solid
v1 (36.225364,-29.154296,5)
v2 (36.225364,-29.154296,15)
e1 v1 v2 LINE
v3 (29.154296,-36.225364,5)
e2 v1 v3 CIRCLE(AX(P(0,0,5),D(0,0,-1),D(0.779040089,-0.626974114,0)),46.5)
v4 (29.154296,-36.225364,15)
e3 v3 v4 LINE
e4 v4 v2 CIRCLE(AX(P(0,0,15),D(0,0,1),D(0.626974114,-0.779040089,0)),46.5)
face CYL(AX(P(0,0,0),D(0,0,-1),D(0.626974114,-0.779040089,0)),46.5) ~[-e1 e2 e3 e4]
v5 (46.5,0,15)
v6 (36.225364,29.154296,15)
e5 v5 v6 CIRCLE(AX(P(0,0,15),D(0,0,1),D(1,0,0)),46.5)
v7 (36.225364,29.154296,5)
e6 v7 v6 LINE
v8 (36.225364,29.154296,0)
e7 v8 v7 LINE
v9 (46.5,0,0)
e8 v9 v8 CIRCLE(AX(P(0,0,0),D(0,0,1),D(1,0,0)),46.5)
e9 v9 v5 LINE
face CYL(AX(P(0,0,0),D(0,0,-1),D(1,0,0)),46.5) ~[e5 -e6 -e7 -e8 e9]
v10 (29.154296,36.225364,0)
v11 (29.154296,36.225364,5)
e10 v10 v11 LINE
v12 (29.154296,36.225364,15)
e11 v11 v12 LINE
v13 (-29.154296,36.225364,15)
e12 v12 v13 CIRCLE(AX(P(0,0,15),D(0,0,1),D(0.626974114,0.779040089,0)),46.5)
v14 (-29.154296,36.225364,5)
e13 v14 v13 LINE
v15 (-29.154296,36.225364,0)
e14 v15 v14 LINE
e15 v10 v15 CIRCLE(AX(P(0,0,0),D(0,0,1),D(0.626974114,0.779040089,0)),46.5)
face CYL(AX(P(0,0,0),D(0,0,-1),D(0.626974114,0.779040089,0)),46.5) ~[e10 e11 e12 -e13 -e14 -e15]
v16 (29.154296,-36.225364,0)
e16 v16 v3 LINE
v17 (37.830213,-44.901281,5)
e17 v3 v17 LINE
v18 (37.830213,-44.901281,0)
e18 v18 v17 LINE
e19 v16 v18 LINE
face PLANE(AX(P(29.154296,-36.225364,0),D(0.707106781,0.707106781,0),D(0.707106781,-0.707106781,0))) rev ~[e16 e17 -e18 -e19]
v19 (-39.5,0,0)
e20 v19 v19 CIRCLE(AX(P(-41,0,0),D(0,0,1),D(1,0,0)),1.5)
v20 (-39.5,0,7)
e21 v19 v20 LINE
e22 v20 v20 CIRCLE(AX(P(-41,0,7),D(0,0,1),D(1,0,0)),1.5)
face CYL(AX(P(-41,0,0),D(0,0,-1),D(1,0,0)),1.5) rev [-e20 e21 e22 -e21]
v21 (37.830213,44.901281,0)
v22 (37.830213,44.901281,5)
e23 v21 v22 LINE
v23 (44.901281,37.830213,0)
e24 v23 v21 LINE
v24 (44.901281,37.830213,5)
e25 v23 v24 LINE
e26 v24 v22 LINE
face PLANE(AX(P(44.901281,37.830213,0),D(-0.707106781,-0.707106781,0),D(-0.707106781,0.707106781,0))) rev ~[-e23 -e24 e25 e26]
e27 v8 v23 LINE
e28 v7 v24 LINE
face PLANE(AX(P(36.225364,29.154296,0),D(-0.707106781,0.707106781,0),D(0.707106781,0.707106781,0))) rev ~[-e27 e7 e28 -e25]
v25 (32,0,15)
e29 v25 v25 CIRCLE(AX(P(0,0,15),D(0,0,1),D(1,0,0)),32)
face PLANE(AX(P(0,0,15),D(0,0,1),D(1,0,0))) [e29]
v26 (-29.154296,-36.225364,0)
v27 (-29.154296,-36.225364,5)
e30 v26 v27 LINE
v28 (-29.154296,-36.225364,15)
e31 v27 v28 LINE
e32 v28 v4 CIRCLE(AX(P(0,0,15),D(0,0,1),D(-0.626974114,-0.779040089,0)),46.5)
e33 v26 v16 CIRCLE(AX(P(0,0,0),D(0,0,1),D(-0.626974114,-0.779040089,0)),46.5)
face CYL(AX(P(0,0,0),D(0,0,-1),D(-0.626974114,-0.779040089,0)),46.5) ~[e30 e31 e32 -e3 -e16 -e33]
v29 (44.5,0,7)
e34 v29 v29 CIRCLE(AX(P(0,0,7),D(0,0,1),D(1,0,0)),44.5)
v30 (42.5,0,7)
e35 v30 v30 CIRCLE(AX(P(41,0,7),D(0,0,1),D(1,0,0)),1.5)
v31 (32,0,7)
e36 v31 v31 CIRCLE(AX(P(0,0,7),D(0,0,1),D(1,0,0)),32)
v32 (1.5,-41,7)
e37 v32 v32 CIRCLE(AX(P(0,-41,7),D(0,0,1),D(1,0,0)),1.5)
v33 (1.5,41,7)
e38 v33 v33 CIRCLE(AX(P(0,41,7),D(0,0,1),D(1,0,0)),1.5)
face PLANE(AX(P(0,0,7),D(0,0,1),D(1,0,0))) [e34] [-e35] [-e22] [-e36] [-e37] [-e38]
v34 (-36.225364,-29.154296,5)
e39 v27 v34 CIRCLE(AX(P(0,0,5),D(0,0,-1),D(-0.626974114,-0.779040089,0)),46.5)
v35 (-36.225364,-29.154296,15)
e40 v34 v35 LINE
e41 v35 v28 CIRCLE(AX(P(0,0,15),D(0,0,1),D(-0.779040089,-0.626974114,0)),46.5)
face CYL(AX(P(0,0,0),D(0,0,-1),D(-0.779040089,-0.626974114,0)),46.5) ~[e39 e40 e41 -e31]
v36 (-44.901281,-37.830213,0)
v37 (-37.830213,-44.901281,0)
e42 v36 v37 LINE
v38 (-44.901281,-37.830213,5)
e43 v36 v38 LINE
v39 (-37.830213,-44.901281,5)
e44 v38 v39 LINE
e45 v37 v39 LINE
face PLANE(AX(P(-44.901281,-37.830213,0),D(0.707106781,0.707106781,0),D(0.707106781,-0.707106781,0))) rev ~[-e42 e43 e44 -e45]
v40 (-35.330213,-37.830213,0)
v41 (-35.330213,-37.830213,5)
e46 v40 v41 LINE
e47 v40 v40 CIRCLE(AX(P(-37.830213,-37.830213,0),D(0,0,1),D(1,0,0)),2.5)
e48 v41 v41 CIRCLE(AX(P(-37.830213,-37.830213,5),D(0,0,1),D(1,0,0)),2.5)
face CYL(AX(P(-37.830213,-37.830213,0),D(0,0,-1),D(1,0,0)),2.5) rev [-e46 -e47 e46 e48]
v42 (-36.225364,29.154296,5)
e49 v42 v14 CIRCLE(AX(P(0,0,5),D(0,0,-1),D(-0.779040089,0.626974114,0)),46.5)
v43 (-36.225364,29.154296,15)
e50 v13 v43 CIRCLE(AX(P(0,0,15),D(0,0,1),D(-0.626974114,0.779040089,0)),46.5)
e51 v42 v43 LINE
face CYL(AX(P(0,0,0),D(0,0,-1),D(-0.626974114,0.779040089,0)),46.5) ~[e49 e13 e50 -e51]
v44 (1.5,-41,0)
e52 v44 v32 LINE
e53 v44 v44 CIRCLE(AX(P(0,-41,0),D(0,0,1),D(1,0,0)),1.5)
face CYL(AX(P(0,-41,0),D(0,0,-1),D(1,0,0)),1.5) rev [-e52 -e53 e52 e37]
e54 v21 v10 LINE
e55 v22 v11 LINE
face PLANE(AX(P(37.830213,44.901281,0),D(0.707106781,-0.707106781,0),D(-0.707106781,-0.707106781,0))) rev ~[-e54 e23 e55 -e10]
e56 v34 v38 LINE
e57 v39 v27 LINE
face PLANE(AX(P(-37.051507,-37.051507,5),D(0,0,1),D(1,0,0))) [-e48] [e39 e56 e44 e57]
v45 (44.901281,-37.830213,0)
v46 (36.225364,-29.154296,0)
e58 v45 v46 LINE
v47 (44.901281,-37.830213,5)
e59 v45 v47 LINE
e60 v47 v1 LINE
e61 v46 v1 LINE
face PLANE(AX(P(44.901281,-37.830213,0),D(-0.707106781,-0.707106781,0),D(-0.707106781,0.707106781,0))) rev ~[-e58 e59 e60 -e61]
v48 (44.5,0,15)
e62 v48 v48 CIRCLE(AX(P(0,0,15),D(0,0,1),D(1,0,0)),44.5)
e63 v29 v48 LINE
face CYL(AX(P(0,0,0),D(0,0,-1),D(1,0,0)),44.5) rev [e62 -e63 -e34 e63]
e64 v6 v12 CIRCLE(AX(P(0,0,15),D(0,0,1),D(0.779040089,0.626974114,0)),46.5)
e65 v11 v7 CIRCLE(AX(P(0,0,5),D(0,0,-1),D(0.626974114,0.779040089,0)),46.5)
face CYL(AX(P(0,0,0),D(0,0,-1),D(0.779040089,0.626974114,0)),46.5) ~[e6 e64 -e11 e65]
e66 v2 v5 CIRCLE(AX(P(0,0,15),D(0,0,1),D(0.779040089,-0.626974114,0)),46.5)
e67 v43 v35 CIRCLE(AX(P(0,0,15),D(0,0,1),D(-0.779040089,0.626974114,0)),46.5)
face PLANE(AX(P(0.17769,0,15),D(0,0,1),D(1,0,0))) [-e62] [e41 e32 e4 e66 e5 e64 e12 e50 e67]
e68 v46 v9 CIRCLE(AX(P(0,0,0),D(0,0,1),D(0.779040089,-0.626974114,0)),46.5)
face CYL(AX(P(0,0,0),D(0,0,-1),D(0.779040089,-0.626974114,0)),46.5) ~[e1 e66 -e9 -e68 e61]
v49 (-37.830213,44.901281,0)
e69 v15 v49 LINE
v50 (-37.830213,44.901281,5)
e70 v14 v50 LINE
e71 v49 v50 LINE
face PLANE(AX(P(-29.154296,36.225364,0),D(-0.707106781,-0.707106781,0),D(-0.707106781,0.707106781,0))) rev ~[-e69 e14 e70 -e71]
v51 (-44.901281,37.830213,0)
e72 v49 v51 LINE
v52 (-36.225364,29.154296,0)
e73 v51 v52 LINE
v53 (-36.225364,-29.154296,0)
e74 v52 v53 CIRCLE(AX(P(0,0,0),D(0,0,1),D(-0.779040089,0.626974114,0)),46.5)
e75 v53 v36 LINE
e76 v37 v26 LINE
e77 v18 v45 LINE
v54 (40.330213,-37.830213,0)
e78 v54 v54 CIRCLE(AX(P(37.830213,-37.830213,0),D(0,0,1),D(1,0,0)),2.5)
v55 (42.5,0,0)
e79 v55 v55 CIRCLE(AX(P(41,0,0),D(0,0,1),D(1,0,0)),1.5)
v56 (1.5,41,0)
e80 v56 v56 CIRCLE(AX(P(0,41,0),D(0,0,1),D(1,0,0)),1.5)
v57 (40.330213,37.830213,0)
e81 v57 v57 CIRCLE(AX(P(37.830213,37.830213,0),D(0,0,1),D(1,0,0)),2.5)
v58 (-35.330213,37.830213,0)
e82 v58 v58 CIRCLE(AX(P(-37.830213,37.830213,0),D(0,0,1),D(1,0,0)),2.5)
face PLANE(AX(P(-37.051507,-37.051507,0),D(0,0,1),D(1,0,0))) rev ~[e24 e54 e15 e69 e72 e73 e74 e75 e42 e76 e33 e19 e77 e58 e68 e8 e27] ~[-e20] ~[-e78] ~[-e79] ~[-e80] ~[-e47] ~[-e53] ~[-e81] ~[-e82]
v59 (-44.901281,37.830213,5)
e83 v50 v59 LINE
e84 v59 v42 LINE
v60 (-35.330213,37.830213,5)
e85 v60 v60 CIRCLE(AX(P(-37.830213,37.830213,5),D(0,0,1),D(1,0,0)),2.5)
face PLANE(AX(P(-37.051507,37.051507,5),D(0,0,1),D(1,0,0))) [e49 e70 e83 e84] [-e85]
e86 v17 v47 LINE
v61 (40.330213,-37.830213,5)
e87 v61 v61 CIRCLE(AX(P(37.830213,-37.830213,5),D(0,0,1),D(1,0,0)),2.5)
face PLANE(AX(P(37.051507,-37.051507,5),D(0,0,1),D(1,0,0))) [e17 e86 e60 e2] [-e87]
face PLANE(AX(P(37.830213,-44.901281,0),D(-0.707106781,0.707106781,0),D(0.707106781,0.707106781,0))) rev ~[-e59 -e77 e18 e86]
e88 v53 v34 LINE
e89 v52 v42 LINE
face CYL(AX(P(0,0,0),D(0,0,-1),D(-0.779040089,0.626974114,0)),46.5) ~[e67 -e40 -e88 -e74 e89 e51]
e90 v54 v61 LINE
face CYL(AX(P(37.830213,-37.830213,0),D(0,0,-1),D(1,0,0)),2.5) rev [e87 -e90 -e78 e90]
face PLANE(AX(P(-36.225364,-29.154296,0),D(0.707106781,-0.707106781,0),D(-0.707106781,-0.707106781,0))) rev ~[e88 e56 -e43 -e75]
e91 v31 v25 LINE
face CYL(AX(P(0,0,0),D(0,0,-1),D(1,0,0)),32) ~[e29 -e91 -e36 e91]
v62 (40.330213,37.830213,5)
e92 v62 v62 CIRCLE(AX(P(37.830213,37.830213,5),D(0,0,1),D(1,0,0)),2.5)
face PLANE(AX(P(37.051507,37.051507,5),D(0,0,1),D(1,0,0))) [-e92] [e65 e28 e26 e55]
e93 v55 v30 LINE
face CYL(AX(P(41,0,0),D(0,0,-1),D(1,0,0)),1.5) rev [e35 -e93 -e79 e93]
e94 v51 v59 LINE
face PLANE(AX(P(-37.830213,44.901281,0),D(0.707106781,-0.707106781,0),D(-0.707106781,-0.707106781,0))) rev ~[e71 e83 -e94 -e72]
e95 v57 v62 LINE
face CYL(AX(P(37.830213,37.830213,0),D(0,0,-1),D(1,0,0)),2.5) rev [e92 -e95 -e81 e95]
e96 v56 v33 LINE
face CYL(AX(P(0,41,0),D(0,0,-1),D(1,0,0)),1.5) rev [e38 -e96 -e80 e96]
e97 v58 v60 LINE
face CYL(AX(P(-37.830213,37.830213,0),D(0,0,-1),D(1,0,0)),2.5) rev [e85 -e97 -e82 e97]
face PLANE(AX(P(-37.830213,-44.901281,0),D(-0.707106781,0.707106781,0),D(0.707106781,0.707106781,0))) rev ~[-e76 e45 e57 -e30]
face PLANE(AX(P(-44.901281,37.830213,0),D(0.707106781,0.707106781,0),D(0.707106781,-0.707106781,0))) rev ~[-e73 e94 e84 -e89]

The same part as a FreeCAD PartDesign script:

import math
import FreeCAD as App
import Part
import Sketcher
from FreeCAD import Vector

doc = App.newDocument("Part")
body = doc.addObject("PartDesign::Body", "Body")

sketch1 = doc.addObject("Sketcher::SketchObject", "Sketch")
body.addObject(sketch1)
sketch1.AttachmentSupport = (doc.XY_Plane, [""])
sketch1.MapMode = "FlatFace"
sketch1.addGeometry(Part.Circle(Vector(0, 0, 0), Vector(0, 0, 1), 44.5), False)
sketch1.addGeometry(Part.Circle(Vector(0, -41, 0), Vector(0, 0, 1), 1.5), False)
sketch1.addGeometry(Part.Circle(Vector(-41, 0, 0), Vector(0, 0, 1), 1.5), False)
sketch1.addGeometry(Part.Circle(Vector(0, 0, 0), Vector(0, 0, 1), 32), False)
sketch1.addGeometry(Part.Circle(Vector(41, 0, 0), Vector(0, 0, 1), 1.5), False)
sketch1.addGeometry(Part.Circle(Vector(0, 41, 0), Vector(0, 0, 1), 1.5), False)
sketch1.addConstraint(Sketcher.Constraint("Coincident", 0, 3, -1, 1))
sketch1.addConstraint(Sketcher.Constraint("Coincident", 3, 3, -1, 1))
sketch1.addConstraint(Sketcher.Constraint("Equal", 1, 2))
sketch1.addConstraint(Sketcher.Constraint("Equal", 2, 4))
sketch1.addConstraint(Sketcher.Constraint("Equal", 4, 5))
sketch1.addConstraint(Sketcher.Constraint("Symmetric", 2, 3, 4, 3, -1, 1))
sketch1.addConstraint(Sketcher.Constraint("Symmetric", 1, 3, 5, 3, -1, 1))
sketch1.addConstraint(Sketcher.Constraint("PointOnObject", 1, 3, -2))
sketch1.addConstraint(Sketcher.Constraint("PointOnObject", 2, 3, -1))
sketch1.addConstraint(Sketcher.Constraint("Diameter", 0, 89.0))
sketch1.addConstraint(Sketcher.Constraint("Diameter", 1, 3.0))
sketch1.addConstraint(Sketcher.Constraint("Diameter", 3, 64.0))
sketch1.addConstraint(Sketcher.Constraint("DistanceY", 1, 3, -1, 1, 41.0))
sketch1.addConstraint(Sketcher.Constraint("DistanceX", 2, 3, -1, 1, 41.0))
pad1 = doc.addObject("PartDesign::Pad", "Pad")
body.addObject(pad1)
pad1.Profile = sketch1
pad1.Length = 7

sketch2 = doc.addObject("Sketcher::SketchObject", "Sketch001")
body.addObject(sketch2)
sketch2.AttachmentSupport = (doc.XY_Plane, [""])
sketch2.MapMode = "FlatFace"
sketch2.addGeometry(Part.ArcOfCircle(Part.Circle(Vector(0, 0, 0), Vector(0, 0, 1), 46), math.radians(-39), math.radians(0)), False)
sketch2.addGeometry(Part.ArcOfCircle(Part.Circle(Vector(0, 0, 0), Vector(0, 0, 1), 46), math.radians(0), math.radians(39)), False)
sketch2.addGeometry(Part.ArcOfCircle(Part.Circle(Vector(0, 0, 0), Vector(0, 0, 1), 46), math.radians(38.83), math.radians(51.17)), False)
sketch2.addGeometry(Part.ArcOfCircle(Part.Circle(Vector(0, 0, 0), Vector(0, 0, 1), 46), math.radians(51), math.radians(129)), False)
sketch2.addGeometry(Part.ArcOfCircle(Part.Circle(Vector(0, 0, 0), Vector(0, 0, 1), 46), math.radians(128.83), math.radians(141.17)), False)
sketch2.addGeometry(Part.ArcOfCircle(Part.Circle(Vector(0, 0, 0), Vector(0, 0, 1), 46), math.radians(141), math.radians(219)), False)
sketch2.addGeometry(Part.ArcOfCircle(Part.Circle(Vector(0, 0, 0), Vector(0, 0, 1), 46), math.radians(-141.17), math.radians(-128.83)), False)
sketch2.addGeometry(Part.ArcOfCircle(Part.Circle(Vector(0, 0, 0), Vector(0, 0, 1), 46), math.radians(-129), math.radians(-51)), False)
sketch2.addGeometry(Part.ArcOfCircle(Part.Circle(Vector(0, 0, 0), Vector(0, 0, 1), 46), math.radians(-51.17), math.radians(-38.83)), False)
sketch2.addGeometry(Part.Circle(Vector(0, 0, 0), Vector(0, 0, 1), 44), False)
sketch2.addGeometry(Part.Circle(Vector(0, 0, 0), Vector(0, 0, 1), 32), False)
sketch2.addConstraint(Sketcher.Constraint("Tangent", 0, 2, 1, 1))
sketch2.addConstraint(Sketcher.Constraint("Tangent", 1, 2, 2, 1))
sketch2.addConstraint(Sketcher.Constraint("Tangent", 2, 2, 3, 1))
sketch2.addConstraint(Sketcher.Constraint("Tangent", 3, 2, 4, 1))
sketch2.addConstraint(Sketcher.Constraint("Tangent", 4, 2, 5, 1))
sketch2.addConstraint(Sketcher.Constraint("Tangent", 5, 2, 6, 1))
sketch2.addConstraint(Sketcher.Constraint("Tangent", 6, 2, 7, 1))
sketch2.addConstraint(Sketcher.Constraint("Tangent", 7, 2, 8, 1))
sketch2.addConstraint(Sketcher.Constraint("Tangent", 8, 2, 0, 1))
sketch2.addConstraint(Sketcher.Constraint("Coincident", 0, 3, -1, 1))
sketch2.addConstraint(Sketcher.Constraint("Coincident", 2, 3, -1, 1))
sketch2.addConstraint(Sketcher.Constraint("Coincident", 4, 3, -1, 1))
sketch2.addConstraint(Sketcher.Constraint("Coincident", 6, 3, -1, 1))
sketch2.addConstraint(Sketcher.Constraint("Coincident", 9, 3, -1, 1))
sketch2.addConstraint(Sketcher.Constraint("Coincident", 10, 3, -1, 1))
sketch2.addConstraint(Sketcher.Constraint("PointOnObject", 0, 2, -1))
sketch2.addConstraint(Sketcher.Constraint("Horizontal", 2, 2, 3, 2))
sketch2.addConstraint(Sketcher.Constraint("Horizontal", 1, 2, 4, 2))
sketch2.addConstraint(Sketcher.Constraint("Horizontal", 6, 2, 7, 2))
sketch2.addConstraint(Sketcher.Constraint("Horizontal", 5, 2, 8, 2))
sketch2.addConstraint(Sketcher.Constraint("Vertical", 4, 2, 5, 2))
sketch2.addConstraint(Sketcher.Constraint("Vertical", 3, 2, 6, 2))
sketch2.addConstraint(Sketcher.Constraint("Diameter", 9, 89.0))
sketch2.addConstraint(Sketcher.Constraint("Diameter", 10, 64.0))
sketch2.addConstraint(Sketcher.Constraint("Radius", 0, 46.5))
sketch2.addConstraint(Sketcher.Constraint("DistanceX", -1, 1, 1, 2, 36.225364))
sketch2.addConstraint(Sketcher.Constraint("DistanceX", -1, 1, 2, 2, 29.154296))
pad2 = doc.addObject("PartDesign::Pad", "Pad001")
body.addObject(pad2)
pad2.Profile = sketch2
pad2.Length = 15

sketch3 = doc.addObject("Sketcher::SketchObject", "Sketch002")
body.addObject(sketch3)
sketch3.AttachmentSupport = (doc.XY_Plane, [""])
sketch3.MapMode = "FlatFace"
sketch3.addGeometry(Part.LineSegment(Vector(-37.8, -44.9, 0), Vector(-29.2, -36.2, 0)), False)
sketch3.addGeometry(Part.ArcOfCircle(Part.Circle(Vector(0, 0, 0), Vector(0, 0, 1), 46.5), math.radians(-141.17), math.radians(-128.83)), False)
sketch3.addGeometry(Part.LineSegment(Vector(-36.2, -29.2, 0), Vector(-44.9, -37.8, 0)), False)
sketch3.addGeometry(Part.LineSegment(Vector(-44.9, -37.8, 0), Vector(-37.8, -44.9, 0)), False)
sketch3.addGeometry(Part.Circle(Vector(-37.8, -37.8, 0), Vector(0, 0, 1), 2.5), False)
sketch3.addGeometry(Part.ArcOfCircle(Part.Circle(Vector(0, 0, 0), Vector(0, 0, 1), 46.5), math.radians(128.83), math.radians(141.17)), False)
sketch3.addGeometry(Part.LineSegment(Vector(-29.2, 36.2, 0), Vector(-37.8, 44.9, 0)), False)
sketch3.addGeometry(Part.LineSegment(Vector(-37.8, 44.9, 0), Vector(-44.9, 37.8, 0)), False)
sketch3.addGeometry(Part.LineSegment(Vector(-44.9, 37.8, 0), Vector(-36.2, 29.2, 0)), False)
sketch3.addGeometry(Part.Circle(Vector(-37.8, 37.8, 0), Vector(0, 0, 1), 2.5), False)
sketch3.addGeometry(Part.ArcOfCircle(Part.Circle(Vector(0, 0, 0), Vector(0, 0, 1), 46.5), math.radians(38.83), math.radians(51.17)), False)
sketch3.addGeometry(Part.LineSegment(Vector(36.2, 29.2, 0), Vector(44.9, 37.8, 0)), False)
sketch3.addGeometry(Part.LineSegment(Vector(44.9, 37.8, 0), Vector(37.8, 44.9, 0)), False)
sketch3.addGeometry(Part.LineSegment(Vector(37.8, 44.9, 0), Vector(29.2, 36.2, 0)), False)
sketch3.addGeometry(Part.Circle(Vector(37.8, 37.8, 0), Vector(0, 0, 1), 2.5), False)
sketch3.addGeometry(Part.LineSegment(Vector(44.9, -37.8, 0), Vector(36.2, -29.2, 0)), False)
sketch3.addGeometry(Part.ArcOfCircle(Part.Circle(Vector(0, 0, 0), Vector(0, 0, 1), 46.5), math.radians(-51.17), math.radians(-38.83)), False)
sketch3.addGeometry(Part.LineSegment(Vector(29.2, -36.2, 0), Vector(37.8, -44.9, 0)), False)
sketch3.addGeometry(Part.LineSegment(Vector(37.8, -44.9, 0), Vector(44.9, -37.8, 0)), False)
sketch3.addGeometry(Part.Circle(Vector(37.8, -37.8, 0), Vector(0, 0, 1), 2.5), False)
sketch3.addConstraint(Sketcher.Constraint("Coincident", 0, 2, 1, 2))
sketch3.addConstraint(Sketcher.Constraint("Coincident", 1, 1, 2, 1))
sketch3.addConstraint(Sketcher.Constraint("Coincident", 2, 2, 3, 1))
sketch3.addConstraint(Sketcher.Constraint("Coincident", 3, 2, 0, 1))
sketch3.addConstraint(Sketcher.Constraint("Coincident", 5, 1, 6, 1))
sketch3.addConstraint(Sketcher.Constraint("Coincident", 6, 2, 7, 1))
sketch3.addConstraint(Sketcher.Constraint("Coincident", 7, 2, 8, 1))
sketch3.addConstraint(Sketcher.Constraint("Coincident", 8, 2, 5, 2))
sketch3.addConstraint(Sketcher.Constraint("Coincident", 10, 1, 11, 1))
sketch3.addConstraint(Sketcher.Constraint("Coincident", 11, 2, 12, 1))
sketch3.addConstraint(Sketcher.Constraint("Coincident", 12, 2, 13, 1))
sketch3.addConstraint(Sketcher.Constraint("Coincident", 13, 2, 10, 2))
sketch3.addConstraint(Sketcher.Constraint("Coincident", 15, 2, 16, 2))
sketch3.addConstraint(Sketcher.Constraint("Coincident", 16, 1, 17, 1))
sketch3.addConstraint(Sketcher.Constraint("Coincident", 17, 2, 18, 1))
sketch3.addConstraint(Sketcher.Constraint("Coincident", 18, 2, 15, 1))
sketch3.addConstraint(Sketcher.Constraint("Coincident", 1, 3, -1, 1))
sketch3.addConstraint(Sketcher.Constraint("Coincident", 5, 3, -1, 1))
sketch3.addConstraint(Sketcher.Constraint("Coincident", 10, 3, -1, 1))
sketch3.addConstraint(Sketcher.Constraint("Coincident", 16, 3, -1, 1))
sketch3.addConstraint(Sketcher.Constraint("Equal", 1, 5))
sketch3.addConstraint(Sketcher.Constraint("Equal", 4, 9))
sketch3.addConstraint(Sketcher.Constraint("Equal", 5, 10))
sketch3.addConstraint(Sketcher.Constraint("Equal", 9, 14))
sketch3.addConstraint(Sketcher.Constraint("Equal", 10, 16))
sketch3.addConstraint(Sketcher.Constraint("Equal", 14, 19))
sketch3.addConstraint(Sketcher.Constraint("Symmetric", 4, 3, 14, 3, -1, 1))
sketch3.addConstraint(Sketcher.Constraint("Symmetric", 9, 3, 19, 3, -1, 1))
sketch3.addConstraint(Sketcher.Constraint("Symmetric", 2, 2, 11, 2, -1, 1))
sketch3.addConstraint(Sketcher.Constraint("Symmetric", 3, 2, 12, 2, -1, 1))
sketch3.addConstraint(Sketcher.Constraint("Symmetric", 6, 2, 17, 2, -1, 1))
sketch3.addConstraint(Sketcher.Constraint("Symmetric", 7, 2, 18, 2, -1, 1))
sketch3.addConstraint(Sketcher.Constraint("Symmetric", 9, 3, 14, 3, -2))
sketch3.addConstraint(Sketcher.Constraint("Symmetric", 7, 2, 11, 2, -2))
sketch3.addConstraint(Sketcher.Constraint("Symmetric", 6, 2, 12, 2, -2))
sketch3.addConstraint(Sketcher.Constraint("Parallel", 0, 2))
sketch3.addConstraint(Sketcher.Constraint("Perpendicular", 2, 3))
sketch3.addConstraint(Sketcher.Constraint("Parallel", 3, 6))
sketch3.addConstraint(Sketcher.Constraint("Perpendicular", 6, 7))
sketch3.addConstraint(Sketcher.Constraint("Perpendicular", 7, 8))
sketch3.addConstraint(Sketcher.Constraint("Perpendicular", 8, 11))
sketch3.addConstraint(Sketcher.Constraint("Perpendicular", 12, 13))
sketch3.addConstraint(Sketcher.Constraint("Perpendicular", 13, 15))
sketch3.addConstraint(Sketcher.Constraint("Parallel", 15, 17))
sketch3.addConstraint(Sketcher.Constraint("Horizontal", 19, 3, 2, 2))
sketch3.addConstraint(Sketcher.Constraint("Vertical", 9, 3, 3, 2))
sketch3.addConstraint(Sketcher.Constraint("Equal", 0, 2))
sketch3.addConstraint(Sketcher.Constraint("Diameter", 4, 5.0))
sketch3.addConstraint(Sketcher.Constraint("Radius", 1, 46.5))
sketch3.addConstraint(Sketcher.Constraint("Distance", 3, 10.0))
sketch3.addConstraint(Sketcher.Constraint("Distance", 0, 12.269599))
pad3 = doc.addObject("PartDesign::Pad", "Pad002")
body.addObject(pad3)
pad3.Profile = sketch3
pad3.Length = 5

doc.recompute()
